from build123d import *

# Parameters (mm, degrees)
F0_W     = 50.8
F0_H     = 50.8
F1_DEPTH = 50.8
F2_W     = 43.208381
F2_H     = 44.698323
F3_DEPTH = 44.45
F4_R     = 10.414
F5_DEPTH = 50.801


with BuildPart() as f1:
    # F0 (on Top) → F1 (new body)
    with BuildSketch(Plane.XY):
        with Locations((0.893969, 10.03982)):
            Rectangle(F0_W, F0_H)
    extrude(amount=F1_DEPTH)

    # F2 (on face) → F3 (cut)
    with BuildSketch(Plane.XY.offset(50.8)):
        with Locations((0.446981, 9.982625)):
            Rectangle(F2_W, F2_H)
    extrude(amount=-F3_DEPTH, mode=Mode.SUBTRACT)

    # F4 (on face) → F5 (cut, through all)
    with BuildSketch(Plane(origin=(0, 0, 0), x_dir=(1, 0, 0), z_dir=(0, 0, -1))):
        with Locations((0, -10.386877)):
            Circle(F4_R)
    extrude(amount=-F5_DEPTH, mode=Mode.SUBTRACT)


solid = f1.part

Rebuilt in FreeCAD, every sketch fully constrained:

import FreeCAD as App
import Part
import Sketcher

V = App.Vector
Q = App.Units.Quantity

doc = App.newDocument("Part")
body = doc.addObject("PartDesign::Body", "Body")

# Sketch on XY plane
sketch1 = doc.addObject("Sketcher::SketchObject", "Sketch")
body.addObject(sketch1)
sketch1.AttachmentSupport = (doc.XY_Plane, [""])
sketch1.MapMode = "FlatFace"
sketch1.addGeometry([
    Part.LineSegment(V(-24.506031, 35.43982, 0), V(-24.506031, -15.36018, 0)),
    Part.LineSegment(V(-24.506031, -15.36018, 0), V(26.293969, -15.36018, 0)),
    Part.LineSegment(V(26.293969, -15.36018, 0), V(26.293969, 35.43982, 0)),
    Part.LineSegment(V(26.293969, 35.43982, 0), V(-24.506031, 35.43982, 0)),
], False)
sketch1.addConstraint([
    Sketcher.Constraint("Coincident", 0, 2, 1, 1),
    Sketcher.Constraint("Coincident", 1, 2, 2, 1),
    Sketcher.Constraint("Coincident", 2, 2, 3, 1),
    Sketcher.Constraint("Coincident", 3, 2, 0, 1),
    Sketcher.Constraint("Vertical", 0),
    Sketcher.Constraint("Horizontal", 1),
    Sketcher.Constraint("Vertical", 2),
    Sketcher.Constraint("Horizontal", 3),
    Sketcher.Constraint("Equal", 3, 0),
    Sketcher.Constraint("DistanceX", 1, 1, 1, 2, Q("2 in")),
    Sketcher.Constraint("DistanceX", 0, 2, -1, 1, 24.506031),
    Sketcher.Constraint("DistanceY", 0, 2, -1, 1, 15.36018),
])
pad1 = doc.addObject("PartDesign::Pad", "Pad")
body.addObject(pad1)
pad1.Profile = sketch1
pad1.Length = Q("2 in")

# Sketch on XY plane
sketch2 = doc.addObject("Sketcher::SketchObject", "Sketch001")
body.addObject(sketch2)
sketch2.AttachmentSupport = (doc.XY_Plane, [""])
sketch2.MapMode = "FlatFace"
sketch2.AttachmentOffset = App.Placement(V(0, 0, 2 * 25.4), App.Rotation())
sketch2.addGeometry([
    Part.LineSegment(V(-21.15721, 32.331786, 0), V(-21.15721, -12.366537, 0)),
    Part.LineSegment(V(-21.15721, -12.366537, 0), V(22.051171, -12.366537, 0)),
    Part.LineSegment(V(22.051171, -12.366537, 0), V(22.051171, 32.331786, 0)),
    Part.LineSegment(V(22.051171, 32.331786, 0), V(-21.15721, 32.331786, 0)),
], False)
sketch2.addConstraint([
    Sketcher.Constraint("Coincident", 0, 2, 1, 1),
    Sketcher.Constraint("Coincident", 1, 2, 2, 1),
    Sketcher.Constraint("Coincident", 2, 2, 3, 1),
    Sketcher.Constraint("Coincident", 3, 2, 0, 1),
    Sketcher.Constraint("Vertical", 0),
    Sketcher.Constraint("Horizontal", 1),
    Sketcher.Constraint("Vertical", 2),
    Sketcher.Constraint("Horizontal", 3),
    Sketcher.Constraint("DistanceX", 1, 1, 1, 2, 43.208381),
    Sketcher.Constraint("DistanceY", 0, 2, 0, 1, 44.698323),
    Sketcher.Constraint("DistanceX", 0, 2, -1, 1, 21.15721),
    Sketcher.Constraint("DistanceY", 0, 2, -1, 1, 12.366537),
])
pocket1 = doc.addObject("PartDesign::Pocket", "Pocket")
body.addObject(pocket1)
pocket1.Profile = sketch2
pocket1.Length = Q("1.75 in")

# Sketch on XY plane
sketch3 = doc.addObject("Sketcher::SketchObject", "Sketch002")
body.addObject(sketch3)
sketch3.AttachmentSupport = (doc.XY_Plane, [""])
sketch3.MapMode = "FlatFace"
sketch3.addGeometry(Part.Circle(V(0, 10.386877, 0), V(0, 0, 1), 10.414), False)
sketch3.addConstraint([
    Sketcher.Constraint("PointOnObject", 0, 3, -2),
    Sketcher.Constraint("Diameter", 0, Q("0.82 in")),
    Sketcher.Constraint("DistanceY", -1, 1, 0, 3, 10.386877),
])
pocket2 = doc.addObject("PartDesign::Pocket", "Pocket001")
body.addObject(pocket2)
pocket2.Profile = sketch3
pocket2.Type = "ThroughAll"
pocket2.Reversed = True

doc.recompute()
